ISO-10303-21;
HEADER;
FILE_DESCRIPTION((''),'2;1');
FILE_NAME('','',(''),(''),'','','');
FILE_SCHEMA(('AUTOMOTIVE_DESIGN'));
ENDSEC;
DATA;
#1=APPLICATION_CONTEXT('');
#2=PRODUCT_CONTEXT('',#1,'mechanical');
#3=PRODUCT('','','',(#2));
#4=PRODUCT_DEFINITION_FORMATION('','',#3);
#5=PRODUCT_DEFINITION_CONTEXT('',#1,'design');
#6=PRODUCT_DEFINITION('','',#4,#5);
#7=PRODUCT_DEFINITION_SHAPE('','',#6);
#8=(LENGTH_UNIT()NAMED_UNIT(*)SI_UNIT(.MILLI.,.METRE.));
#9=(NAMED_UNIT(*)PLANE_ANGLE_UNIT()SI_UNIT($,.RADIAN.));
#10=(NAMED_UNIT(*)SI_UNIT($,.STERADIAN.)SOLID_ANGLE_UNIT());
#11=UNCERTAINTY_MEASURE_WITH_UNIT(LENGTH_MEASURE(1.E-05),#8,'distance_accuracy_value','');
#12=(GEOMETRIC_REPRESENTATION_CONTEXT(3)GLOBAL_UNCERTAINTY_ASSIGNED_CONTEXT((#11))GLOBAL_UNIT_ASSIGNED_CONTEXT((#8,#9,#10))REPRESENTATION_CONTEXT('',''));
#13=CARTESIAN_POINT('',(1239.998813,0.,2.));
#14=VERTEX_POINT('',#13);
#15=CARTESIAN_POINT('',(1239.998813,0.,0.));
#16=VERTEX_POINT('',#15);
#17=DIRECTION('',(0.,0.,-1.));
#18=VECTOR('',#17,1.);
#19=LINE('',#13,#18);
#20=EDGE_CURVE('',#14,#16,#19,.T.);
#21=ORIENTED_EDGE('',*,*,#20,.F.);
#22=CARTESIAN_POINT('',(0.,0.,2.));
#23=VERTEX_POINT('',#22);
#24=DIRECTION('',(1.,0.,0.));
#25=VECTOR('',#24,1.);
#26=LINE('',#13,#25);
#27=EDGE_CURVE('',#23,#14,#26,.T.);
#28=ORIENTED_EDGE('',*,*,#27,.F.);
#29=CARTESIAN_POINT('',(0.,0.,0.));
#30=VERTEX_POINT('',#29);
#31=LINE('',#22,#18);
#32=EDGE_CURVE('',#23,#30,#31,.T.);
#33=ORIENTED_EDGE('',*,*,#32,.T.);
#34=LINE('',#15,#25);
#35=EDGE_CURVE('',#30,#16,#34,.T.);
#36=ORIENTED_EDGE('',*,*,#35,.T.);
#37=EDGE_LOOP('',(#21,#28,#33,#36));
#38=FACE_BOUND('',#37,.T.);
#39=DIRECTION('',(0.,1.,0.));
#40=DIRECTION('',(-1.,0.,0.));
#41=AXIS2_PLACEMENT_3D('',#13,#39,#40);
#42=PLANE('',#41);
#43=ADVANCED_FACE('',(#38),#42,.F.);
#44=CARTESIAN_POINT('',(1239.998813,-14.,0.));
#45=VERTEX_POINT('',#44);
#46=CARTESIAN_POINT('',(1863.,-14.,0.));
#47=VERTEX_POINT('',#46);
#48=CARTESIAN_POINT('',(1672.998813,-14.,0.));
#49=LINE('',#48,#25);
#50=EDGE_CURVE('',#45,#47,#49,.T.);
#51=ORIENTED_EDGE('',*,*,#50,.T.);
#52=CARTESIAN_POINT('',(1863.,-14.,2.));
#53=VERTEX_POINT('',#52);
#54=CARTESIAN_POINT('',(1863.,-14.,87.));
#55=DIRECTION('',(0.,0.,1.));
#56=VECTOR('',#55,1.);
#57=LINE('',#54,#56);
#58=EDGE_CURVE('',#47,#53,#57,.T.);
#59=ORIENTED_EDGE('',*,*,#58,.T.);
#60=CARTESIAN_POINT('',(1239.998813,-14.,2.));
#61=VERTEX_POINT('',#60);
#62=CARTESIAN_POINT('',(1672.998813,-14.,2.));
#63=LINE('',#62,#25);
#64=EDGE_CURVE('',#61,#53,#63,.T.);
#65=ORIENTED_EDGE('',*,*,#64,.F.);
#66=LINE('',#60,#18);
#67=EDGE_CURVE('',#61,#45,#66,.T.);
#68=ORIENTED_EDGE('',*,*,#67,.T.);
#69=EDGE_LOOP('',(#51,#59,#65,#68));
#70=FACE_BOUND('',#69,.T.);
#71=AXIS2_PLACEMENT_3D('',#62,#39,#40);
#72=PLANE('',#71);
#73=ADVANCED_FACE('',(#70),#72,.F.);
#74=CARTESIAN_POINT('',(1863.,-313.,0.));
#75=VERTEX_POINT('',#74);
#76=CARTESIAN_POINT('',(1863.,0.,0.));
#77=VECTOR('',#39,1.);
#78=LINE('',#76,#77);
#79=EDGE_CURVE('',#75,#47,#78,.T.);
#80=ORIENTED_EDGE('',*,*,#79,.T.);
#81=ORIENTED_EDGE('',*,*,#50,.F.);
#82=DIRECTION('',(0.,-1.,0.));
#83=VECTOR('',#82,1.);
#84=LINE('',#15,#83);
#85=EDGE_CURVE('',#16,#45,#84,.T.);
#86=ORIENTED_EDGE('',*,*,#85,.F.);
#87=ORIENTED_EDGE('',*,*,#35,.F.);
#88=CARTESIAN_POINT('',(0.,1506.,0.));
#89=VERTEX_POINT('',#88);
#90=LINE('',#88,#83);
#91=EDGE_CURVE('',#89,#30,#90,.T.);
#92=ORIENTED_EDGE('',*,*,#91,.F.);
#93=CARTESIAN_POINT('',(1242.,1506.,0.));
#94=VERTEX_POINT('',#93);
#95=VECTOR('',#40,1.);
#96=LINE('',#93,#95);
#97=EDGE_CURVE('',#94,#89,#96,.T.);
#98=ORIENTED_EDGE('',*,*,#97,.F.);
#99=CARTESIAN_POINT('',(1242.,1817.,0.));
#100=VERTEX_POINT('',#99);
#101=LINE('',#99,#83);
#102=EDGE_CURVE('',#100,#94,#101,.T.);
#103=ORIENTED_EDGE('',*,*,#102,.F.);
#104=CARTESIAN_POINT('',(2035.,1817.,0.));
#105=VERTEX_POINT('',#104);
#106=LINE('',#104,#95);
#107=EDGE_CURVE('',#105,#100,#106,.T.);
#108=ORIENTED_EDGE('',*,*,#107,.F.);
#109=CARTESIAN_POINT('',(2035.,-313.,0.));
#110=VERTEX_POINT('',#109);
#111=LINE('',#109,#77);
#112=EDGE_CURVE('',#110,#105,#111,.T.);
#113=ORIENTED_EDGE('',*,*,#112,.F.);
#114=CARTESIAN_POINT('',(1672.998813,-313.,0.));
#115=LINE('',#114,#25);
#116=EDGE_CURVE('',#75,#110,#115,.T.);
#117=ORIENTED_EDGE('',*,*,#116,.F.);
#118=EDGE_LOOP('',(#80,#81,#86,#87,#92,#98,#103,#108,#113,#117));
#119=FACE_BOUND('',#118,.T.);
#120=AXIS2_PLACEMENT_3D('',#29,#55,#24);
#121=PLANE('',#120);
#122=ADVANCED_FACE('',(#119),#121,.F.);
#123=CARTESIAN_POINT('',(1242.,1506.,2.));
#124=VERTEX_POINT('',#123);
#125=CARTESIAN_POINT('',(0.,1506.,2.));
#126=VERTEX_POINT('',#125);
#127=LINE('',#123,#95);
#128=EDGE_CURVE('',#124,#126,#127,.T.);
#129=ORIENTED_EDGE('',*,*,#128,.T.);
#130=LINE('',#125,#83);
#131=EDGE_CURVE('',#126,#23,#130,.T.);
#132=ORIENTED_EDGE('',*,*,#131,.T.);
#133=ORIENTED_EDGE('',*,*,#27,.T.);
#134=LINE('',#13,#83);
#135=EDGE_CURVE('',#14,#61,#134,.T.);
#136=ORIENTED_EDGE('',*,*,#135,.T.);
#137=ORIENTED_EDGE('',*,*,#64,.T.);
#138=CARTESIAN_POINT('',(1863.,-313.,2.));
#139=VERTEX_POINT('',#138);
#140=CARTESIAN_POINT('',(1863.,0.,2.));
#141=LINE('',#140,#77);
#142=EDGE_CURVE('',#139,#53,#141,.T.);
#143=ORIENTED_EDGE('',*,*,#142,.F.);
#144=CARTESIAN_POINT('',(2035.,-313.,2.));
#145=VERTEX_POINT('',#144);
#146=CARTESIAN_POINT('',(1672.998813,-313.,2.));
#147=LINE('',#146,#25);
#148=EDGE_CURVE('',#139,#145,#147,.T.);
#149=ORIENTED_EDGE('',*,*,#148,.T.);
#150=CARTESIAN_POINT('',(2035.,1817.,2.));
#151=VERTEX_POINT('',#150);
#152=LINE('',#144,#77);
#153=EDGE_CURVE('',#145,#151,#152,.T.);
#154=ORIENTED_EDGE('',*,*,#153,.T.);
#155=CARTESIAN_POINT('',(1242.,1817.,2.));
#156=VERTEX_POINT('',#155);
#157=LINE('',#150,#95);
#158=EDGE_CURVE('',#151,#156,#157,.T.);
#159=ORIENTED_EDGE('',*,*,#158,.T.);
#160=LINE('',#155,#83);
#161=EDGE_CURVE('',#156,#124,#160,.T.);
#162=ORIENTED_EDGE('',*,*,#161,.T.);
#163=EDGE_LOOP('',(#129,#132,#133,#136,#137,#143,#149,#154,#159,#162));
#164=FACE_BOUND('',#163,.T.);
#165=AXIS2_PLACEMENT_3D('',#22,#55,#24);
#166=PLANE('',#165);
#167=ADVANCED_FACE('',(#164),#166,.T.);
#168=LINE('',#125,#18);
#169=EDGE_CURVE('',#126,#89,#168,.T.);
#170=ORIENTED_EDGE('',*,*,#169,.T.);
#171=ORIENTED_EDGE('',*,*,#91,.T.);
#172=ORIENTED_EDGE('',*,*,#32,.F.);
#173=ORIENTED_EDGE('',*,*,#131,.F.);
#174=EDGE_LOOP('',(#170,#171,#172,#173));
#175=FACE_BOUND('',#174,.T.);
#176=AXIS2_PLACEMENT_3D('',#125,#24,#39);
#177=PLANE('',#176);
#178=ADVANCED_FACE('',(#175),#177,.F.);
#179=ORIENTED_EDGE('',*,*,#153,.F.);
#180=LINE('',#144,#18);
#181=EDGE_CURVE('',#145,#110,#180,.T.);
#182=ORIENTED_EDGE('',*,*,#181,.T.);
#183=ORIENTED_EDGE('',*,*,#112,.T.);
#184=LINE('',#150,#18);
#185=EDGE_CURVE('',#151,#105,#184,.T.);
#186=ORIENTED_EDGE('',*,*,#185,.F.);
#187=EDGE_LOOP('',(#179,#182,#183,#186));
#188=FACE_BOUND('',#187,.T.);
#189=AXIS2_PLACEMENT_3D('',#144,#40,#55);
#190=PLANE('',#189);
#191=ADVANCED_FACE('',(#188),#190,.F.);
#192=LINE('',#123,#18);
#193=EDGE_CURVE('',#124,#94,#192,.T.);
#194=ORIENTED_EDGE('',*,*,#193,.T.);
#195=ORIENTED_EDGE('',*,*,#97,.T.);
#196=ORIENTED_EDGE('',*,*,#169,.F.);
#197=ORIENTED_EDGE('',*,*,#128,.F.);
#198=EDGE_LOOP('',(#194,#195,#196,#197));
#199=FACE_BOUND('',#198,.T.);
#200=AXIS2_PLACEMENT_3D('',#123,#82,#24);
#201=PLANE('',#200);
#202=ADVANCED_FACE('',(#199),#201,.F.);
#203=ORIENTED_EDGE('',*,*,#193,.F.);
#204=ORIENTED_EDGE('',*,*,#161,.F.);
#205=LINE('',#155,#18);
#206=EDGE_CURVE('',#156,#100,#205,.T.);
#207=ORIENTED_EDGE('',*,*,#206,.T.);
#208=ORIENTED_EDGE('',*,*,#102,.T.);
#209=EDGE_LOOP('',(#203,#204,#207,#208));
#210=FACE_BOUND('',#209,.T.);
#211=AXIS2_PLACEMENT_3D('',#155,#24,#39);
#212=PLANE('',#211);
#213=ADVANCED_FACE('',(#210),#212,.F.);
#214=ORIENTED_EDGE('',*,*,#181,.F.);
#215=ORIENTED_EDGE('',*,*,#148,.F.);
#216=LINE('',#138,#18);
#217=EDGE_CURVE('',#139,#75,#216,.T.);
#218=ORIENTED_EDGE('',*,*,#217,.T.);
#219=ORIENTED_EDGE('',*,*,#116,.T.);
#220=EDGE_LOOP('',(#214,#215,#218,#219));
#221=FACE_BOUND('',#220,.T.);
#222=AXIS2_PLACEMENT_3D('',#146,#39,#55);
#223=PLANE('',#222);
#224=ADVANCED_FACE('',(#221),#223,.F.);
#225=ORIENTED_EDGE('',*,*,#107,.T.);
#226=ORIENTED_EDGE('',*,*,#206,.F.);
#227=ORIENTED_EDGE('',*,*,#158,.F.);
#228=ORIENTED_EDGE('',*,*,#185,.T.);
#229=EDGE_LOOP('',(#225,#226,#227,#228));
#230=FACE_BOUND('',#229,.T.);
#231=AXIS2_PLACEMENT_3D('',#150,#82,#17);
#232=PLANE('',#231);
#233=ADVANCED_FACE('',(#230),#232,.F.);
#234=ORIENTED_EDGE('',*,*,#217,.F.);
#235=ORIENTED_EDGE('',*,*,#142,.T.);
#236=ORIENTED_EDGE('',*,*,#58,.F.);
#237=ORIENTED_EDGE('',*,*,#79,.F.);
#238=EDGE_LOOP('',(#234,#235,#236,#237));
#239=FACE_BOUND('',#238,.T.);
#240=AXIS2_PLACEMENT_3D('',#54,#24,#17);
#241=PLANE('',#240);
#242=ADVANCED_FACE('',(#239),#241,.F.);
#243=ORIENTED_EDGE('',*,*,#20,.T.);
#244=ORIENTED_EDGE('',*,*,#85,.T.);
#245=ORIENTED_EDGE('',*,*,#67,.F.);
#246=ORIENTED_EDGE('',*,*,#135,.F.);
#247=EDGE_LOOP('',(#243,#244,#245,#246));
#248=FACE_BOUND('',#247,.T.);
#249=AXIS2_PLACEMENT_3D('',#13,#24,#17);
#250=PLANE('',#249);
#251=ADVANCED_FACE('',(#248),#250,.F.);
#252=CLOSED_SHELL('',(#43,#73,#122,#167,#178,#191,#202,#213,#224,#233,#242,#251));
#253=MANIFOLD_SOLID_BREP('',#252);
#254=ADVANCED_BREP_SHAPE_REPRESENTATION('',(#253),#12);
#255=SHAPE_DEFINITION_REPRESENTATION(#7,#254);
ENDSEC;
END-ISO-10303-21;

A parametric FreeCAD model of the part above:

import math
import FreeCAD as App
import Part
import Sketcher

V = App.Vector
Q = App.Units.Quantity


def add_polygon(sketch, points):
    """Adds a closed chain of lines whose ends are joined by coincident constraints."""
    first, n = sketch.GeometryCount, len(points)
    for a, b in zip(points, points[1:] + points[:1]):
        sketch.addGeometry(Part.LineSegment(App.Vector(*a, 0), App.Vector(*b, 0)), False)
    for i in range(n):
        sketch.addConstraint(Sketcher.Constraint("Coincident", first + i, 2, first + (i + 1) % n, 1))

doc = App.newDocument("Part")
params = doc.addObject("Spreadsheet::Sheet", "Params")
for row, (alias, value) in enumerate([
    ("sketch1_width", "1242 mm"),
    ("sketch1_width2", "433 mm"),
    ("sketch1_width3", "793 mm"),
    ("sketch1_height", "1506 mm"),
    ("sketch1_height2", "14 mm"),
    ("pad1_length", "2 mm"),
    ("sketch2_radius", "100 mm"),
    ("sketch2_width", "421 mm"),
    ("sketch2_height", "1650 mm"),
    ("pocket1_length", "330 mm"),
], start=1):
    params.set(f"A{row}", alias)
    params.set(f"B{row}", "=" + value)
    params.setAlias(f"B{row}", alias)

body = doc.addObject("PartDesign::Body", "Body")

# Sketch on XY plane
sketch1 = doc.addObject("Sketcher::SketchObject", "Sketch")
body.addObject(sketch1)
sketch1.AttachmentSupport = (doc.XY_Plane, [""])
sketch1.MapMode = "FlatFace"
add_polygon(sketch1, [(1242, 1506), (0, 1506), (0, 0), (1239.998813, 0), (1239.998813, -14), (1672.998813, -14), (1672.998813, -313), (2035, -313), (2035, 1817), (1242, 1817)])  # lines 0-9
sketch1.addConstraint(Sketcher.Constraint("Horizontal", 0))
sketch1.addConstraint(Sketcher.Constraint("Vertical", 1))
sketch1.addConstraint(Sketcher.Constraint("Horizontal", 2))
sketch1.addConstraint(Sketcher.Constraint("Vertical", 3))
sketch1.addConstraint(Sketcher.Constraint("Horizontal", 4))
sketch1.addConstraint(Sketcher.Constraint("Vertical", 5))
sketch1.addConstraint(Sketcher.Constraint("Horizontal", 6))
sketch1.addConstraint(Sketcher.Constraint("Vertical", 7))
sketch1.addConstraint(Sketcher.Constraint("Horizontal", 8))
sketch1.addConstraint(Sketcher.Constraint("Vertical", 9))
sketch1.addConstraint(Sketcher.Constraint("Coincident", 1, 2, -1, 1))
sketch1.addConstraint(Sketcher.Constraint("DistanceX", 0, 2, 0, 1, Q("1242 mm")))
sketch1.addConstraint(Sketcher.Constraint("DistanceX", 4, 1, 4, 2, Q("433 mm")))
sketch1.addConstraint(Sketcher.Constraint("DistanceX", 8, 2, 8, 1, Q("793 mm")))
sketch1.addConstraint(Sketcher.Constraint("DistanceY", 1, 2, 1, 1, Q("1506 mm")))
sketch1.addConstraint(Sketcher.Constraint("DistanceY", 3, 2, 3, 1, Q("14 mm")))
sketch1.addConstraint(Sketcher.Constraint("DistanceY", 5, 2, 5, 1, Q("299 mm")))
sketch1.addConstraint(Sketcher.Constraint("DistanceY", 7, 1, 7, 2, Q("2130 mm")))
sketch1.addConstraint(Sketcher.Constraint("DistanceX", 2, 1, 2, 2, Q("1239.998813 mm")))
sketch1.setExpression("Constraints[21]", "Params.sketch1_width")
sketch1.setExpression("Constraints[22]", "Params.sketch1_width2")
sketch1.setExpression("Constraints[23]", "Params.sketch1_width3")
sketch1.setExpression("Constraints[24]", "Params.sketch1_height")
sketch1.setExpression("Constraints[25]", "Params.sketch1_height2")
pad1 = doc.addObject("PartDesign::Pad", "Pad")
body.addObject(pad1)
pad1.Profile = sketch1
pad1.setExpression("Length", "Params.pad1_length")

# Sketch on XZ plane
sketch2 = doc.addObject("Sketcher::SketchObject", "Sketch001")
body.addObject(sketch2)
sketch2.AttachmentSupport = (doc.XZ_Plane, [""])
sketch2.MapMode = "FlatFace"
sketch2.AttachmentOffset = App.Placement(V(0, 0, 344), App.Rotation())
sketch2.addGeometry(Part.LineSegment(V(1763, 187, 0), V(1342, 187, 0)), False)
sketch2.addGeometry(Part.ArcOfCircle(Part.Circle(V(1342, 87, 0), V(0, 0, 1), 100), math.radians(90), math.radians(180)), False)
sketch2.addGeometry(Part.LineSegment(V(1242, 87, 0), V(1242, -1563, 0)), False)
sketch2.addGeometry(Part.ArcOfCircle(Part.Circle(V(1342, -1563, 0), V(0, 0, 1), 100), math.radians(-180), math.radians(-90)), False)
sketch2.addGeometry(Part.LineSegment(V(1342, -1663, 0), V(1763, -1663, 0)), False)
sketch2.addGeometry(Part.ArcOfCircle(Part.Circle(V(1763, -1563, 0), V(0, 0, 1), 100), math.radians(-90), math.radians(0)), False)
sketch2.addGeometry(Part.LineSegment(V(1863, -1563, 0), V(1863, 87, 0)), False)
sketch2.addGeometry(Part.ArcOfCircle(Part.Circle(V(1763, 87, 0), V(0, 0, 1), 100), math.radians(0), math.radians(90)), False)
sketch2.addConstraint(Sketcher.Constraint("Tangent", 0, 2, 1, 1))
sketch2.addConstraint(Sketcher.Constraint("Tangent", 1, 2, 2, 1))
sketch2.addConstraint(Sketcher.Constraint("Tangent", 2, 2, 3, 1))
sketch2.addConstraint(Sketcher.Constraint("Tangent", 3, 2, 4, 1))
sketch2.addConstraint(Sketcher.Constraint("Tangent", 4, 2, 5, 1))
sketch2.addConstraint(Sketcher.Constraint("Tangent", 5, 2, 6, 1))
sketch2.addConstraint(Sketcher.Constraint("Tangent", 6, 2, 7, 1))
sketch2.addConstraint(Sketcher.Constraint("Tangent", 7, 2, 0, 1))
sketch2.addConstraint(Sketcher.Constraint("Horizontal", 0))
sketch2.addConstraint(Sketcher.Constraint("Vertical", 2))
sketch2.addConstraint(Sketcher.Constraint("Horizontal", 4))
sketch2.addConstraint(Sketcher.Constraint("Vertical", 6))
sketch2.addConstraint(Sketcher.Constraint("Equal", 1, 3))
sketch2.addConstraint(Sketcher.Constraint("Equal", 3, 5))
sketch2.addConstraint(Sketcher.Constraint("Equal", 5, 7))
sketch2.addConstraint(Sketcher.Constraint("Radius", 1, Q("100 mm")))
sketch2.addConstraint(Sketcher.Constraint("DistanceX", 0, 2, 0, 1, Q("421 mm")))
sketch2.addConstraint(Sketcher.Constraint("DistanceY", 2, 2, 2, 1, Q("1650 mm")))
sketch2.addConstraint(Sketcher.Constraint("DistanceX", -1, 1, 1, 3, Q("1342 mm")))
sketch2.addConstraint(Sketcher.Constraint("DistanceY", -1, 1, 1, 3, Q("87 mm")))
sketch2.setExpression("Constraints[15]", "Params.sketch2_radius")
sketch2.setExpression("Constraints[16]", "Params.sketch2_width")
sketch2.setExpression("Constraints[17]", "Params.sketch2_height")
pocket1 = doc.addObject("PartDesign::Pocket", "Pocket")
body.addObject(pocket1)
pocket1.Profile = sketch2
pocket1.setExpression("Length", "Params.pocket1_length")

doc.recompute()
